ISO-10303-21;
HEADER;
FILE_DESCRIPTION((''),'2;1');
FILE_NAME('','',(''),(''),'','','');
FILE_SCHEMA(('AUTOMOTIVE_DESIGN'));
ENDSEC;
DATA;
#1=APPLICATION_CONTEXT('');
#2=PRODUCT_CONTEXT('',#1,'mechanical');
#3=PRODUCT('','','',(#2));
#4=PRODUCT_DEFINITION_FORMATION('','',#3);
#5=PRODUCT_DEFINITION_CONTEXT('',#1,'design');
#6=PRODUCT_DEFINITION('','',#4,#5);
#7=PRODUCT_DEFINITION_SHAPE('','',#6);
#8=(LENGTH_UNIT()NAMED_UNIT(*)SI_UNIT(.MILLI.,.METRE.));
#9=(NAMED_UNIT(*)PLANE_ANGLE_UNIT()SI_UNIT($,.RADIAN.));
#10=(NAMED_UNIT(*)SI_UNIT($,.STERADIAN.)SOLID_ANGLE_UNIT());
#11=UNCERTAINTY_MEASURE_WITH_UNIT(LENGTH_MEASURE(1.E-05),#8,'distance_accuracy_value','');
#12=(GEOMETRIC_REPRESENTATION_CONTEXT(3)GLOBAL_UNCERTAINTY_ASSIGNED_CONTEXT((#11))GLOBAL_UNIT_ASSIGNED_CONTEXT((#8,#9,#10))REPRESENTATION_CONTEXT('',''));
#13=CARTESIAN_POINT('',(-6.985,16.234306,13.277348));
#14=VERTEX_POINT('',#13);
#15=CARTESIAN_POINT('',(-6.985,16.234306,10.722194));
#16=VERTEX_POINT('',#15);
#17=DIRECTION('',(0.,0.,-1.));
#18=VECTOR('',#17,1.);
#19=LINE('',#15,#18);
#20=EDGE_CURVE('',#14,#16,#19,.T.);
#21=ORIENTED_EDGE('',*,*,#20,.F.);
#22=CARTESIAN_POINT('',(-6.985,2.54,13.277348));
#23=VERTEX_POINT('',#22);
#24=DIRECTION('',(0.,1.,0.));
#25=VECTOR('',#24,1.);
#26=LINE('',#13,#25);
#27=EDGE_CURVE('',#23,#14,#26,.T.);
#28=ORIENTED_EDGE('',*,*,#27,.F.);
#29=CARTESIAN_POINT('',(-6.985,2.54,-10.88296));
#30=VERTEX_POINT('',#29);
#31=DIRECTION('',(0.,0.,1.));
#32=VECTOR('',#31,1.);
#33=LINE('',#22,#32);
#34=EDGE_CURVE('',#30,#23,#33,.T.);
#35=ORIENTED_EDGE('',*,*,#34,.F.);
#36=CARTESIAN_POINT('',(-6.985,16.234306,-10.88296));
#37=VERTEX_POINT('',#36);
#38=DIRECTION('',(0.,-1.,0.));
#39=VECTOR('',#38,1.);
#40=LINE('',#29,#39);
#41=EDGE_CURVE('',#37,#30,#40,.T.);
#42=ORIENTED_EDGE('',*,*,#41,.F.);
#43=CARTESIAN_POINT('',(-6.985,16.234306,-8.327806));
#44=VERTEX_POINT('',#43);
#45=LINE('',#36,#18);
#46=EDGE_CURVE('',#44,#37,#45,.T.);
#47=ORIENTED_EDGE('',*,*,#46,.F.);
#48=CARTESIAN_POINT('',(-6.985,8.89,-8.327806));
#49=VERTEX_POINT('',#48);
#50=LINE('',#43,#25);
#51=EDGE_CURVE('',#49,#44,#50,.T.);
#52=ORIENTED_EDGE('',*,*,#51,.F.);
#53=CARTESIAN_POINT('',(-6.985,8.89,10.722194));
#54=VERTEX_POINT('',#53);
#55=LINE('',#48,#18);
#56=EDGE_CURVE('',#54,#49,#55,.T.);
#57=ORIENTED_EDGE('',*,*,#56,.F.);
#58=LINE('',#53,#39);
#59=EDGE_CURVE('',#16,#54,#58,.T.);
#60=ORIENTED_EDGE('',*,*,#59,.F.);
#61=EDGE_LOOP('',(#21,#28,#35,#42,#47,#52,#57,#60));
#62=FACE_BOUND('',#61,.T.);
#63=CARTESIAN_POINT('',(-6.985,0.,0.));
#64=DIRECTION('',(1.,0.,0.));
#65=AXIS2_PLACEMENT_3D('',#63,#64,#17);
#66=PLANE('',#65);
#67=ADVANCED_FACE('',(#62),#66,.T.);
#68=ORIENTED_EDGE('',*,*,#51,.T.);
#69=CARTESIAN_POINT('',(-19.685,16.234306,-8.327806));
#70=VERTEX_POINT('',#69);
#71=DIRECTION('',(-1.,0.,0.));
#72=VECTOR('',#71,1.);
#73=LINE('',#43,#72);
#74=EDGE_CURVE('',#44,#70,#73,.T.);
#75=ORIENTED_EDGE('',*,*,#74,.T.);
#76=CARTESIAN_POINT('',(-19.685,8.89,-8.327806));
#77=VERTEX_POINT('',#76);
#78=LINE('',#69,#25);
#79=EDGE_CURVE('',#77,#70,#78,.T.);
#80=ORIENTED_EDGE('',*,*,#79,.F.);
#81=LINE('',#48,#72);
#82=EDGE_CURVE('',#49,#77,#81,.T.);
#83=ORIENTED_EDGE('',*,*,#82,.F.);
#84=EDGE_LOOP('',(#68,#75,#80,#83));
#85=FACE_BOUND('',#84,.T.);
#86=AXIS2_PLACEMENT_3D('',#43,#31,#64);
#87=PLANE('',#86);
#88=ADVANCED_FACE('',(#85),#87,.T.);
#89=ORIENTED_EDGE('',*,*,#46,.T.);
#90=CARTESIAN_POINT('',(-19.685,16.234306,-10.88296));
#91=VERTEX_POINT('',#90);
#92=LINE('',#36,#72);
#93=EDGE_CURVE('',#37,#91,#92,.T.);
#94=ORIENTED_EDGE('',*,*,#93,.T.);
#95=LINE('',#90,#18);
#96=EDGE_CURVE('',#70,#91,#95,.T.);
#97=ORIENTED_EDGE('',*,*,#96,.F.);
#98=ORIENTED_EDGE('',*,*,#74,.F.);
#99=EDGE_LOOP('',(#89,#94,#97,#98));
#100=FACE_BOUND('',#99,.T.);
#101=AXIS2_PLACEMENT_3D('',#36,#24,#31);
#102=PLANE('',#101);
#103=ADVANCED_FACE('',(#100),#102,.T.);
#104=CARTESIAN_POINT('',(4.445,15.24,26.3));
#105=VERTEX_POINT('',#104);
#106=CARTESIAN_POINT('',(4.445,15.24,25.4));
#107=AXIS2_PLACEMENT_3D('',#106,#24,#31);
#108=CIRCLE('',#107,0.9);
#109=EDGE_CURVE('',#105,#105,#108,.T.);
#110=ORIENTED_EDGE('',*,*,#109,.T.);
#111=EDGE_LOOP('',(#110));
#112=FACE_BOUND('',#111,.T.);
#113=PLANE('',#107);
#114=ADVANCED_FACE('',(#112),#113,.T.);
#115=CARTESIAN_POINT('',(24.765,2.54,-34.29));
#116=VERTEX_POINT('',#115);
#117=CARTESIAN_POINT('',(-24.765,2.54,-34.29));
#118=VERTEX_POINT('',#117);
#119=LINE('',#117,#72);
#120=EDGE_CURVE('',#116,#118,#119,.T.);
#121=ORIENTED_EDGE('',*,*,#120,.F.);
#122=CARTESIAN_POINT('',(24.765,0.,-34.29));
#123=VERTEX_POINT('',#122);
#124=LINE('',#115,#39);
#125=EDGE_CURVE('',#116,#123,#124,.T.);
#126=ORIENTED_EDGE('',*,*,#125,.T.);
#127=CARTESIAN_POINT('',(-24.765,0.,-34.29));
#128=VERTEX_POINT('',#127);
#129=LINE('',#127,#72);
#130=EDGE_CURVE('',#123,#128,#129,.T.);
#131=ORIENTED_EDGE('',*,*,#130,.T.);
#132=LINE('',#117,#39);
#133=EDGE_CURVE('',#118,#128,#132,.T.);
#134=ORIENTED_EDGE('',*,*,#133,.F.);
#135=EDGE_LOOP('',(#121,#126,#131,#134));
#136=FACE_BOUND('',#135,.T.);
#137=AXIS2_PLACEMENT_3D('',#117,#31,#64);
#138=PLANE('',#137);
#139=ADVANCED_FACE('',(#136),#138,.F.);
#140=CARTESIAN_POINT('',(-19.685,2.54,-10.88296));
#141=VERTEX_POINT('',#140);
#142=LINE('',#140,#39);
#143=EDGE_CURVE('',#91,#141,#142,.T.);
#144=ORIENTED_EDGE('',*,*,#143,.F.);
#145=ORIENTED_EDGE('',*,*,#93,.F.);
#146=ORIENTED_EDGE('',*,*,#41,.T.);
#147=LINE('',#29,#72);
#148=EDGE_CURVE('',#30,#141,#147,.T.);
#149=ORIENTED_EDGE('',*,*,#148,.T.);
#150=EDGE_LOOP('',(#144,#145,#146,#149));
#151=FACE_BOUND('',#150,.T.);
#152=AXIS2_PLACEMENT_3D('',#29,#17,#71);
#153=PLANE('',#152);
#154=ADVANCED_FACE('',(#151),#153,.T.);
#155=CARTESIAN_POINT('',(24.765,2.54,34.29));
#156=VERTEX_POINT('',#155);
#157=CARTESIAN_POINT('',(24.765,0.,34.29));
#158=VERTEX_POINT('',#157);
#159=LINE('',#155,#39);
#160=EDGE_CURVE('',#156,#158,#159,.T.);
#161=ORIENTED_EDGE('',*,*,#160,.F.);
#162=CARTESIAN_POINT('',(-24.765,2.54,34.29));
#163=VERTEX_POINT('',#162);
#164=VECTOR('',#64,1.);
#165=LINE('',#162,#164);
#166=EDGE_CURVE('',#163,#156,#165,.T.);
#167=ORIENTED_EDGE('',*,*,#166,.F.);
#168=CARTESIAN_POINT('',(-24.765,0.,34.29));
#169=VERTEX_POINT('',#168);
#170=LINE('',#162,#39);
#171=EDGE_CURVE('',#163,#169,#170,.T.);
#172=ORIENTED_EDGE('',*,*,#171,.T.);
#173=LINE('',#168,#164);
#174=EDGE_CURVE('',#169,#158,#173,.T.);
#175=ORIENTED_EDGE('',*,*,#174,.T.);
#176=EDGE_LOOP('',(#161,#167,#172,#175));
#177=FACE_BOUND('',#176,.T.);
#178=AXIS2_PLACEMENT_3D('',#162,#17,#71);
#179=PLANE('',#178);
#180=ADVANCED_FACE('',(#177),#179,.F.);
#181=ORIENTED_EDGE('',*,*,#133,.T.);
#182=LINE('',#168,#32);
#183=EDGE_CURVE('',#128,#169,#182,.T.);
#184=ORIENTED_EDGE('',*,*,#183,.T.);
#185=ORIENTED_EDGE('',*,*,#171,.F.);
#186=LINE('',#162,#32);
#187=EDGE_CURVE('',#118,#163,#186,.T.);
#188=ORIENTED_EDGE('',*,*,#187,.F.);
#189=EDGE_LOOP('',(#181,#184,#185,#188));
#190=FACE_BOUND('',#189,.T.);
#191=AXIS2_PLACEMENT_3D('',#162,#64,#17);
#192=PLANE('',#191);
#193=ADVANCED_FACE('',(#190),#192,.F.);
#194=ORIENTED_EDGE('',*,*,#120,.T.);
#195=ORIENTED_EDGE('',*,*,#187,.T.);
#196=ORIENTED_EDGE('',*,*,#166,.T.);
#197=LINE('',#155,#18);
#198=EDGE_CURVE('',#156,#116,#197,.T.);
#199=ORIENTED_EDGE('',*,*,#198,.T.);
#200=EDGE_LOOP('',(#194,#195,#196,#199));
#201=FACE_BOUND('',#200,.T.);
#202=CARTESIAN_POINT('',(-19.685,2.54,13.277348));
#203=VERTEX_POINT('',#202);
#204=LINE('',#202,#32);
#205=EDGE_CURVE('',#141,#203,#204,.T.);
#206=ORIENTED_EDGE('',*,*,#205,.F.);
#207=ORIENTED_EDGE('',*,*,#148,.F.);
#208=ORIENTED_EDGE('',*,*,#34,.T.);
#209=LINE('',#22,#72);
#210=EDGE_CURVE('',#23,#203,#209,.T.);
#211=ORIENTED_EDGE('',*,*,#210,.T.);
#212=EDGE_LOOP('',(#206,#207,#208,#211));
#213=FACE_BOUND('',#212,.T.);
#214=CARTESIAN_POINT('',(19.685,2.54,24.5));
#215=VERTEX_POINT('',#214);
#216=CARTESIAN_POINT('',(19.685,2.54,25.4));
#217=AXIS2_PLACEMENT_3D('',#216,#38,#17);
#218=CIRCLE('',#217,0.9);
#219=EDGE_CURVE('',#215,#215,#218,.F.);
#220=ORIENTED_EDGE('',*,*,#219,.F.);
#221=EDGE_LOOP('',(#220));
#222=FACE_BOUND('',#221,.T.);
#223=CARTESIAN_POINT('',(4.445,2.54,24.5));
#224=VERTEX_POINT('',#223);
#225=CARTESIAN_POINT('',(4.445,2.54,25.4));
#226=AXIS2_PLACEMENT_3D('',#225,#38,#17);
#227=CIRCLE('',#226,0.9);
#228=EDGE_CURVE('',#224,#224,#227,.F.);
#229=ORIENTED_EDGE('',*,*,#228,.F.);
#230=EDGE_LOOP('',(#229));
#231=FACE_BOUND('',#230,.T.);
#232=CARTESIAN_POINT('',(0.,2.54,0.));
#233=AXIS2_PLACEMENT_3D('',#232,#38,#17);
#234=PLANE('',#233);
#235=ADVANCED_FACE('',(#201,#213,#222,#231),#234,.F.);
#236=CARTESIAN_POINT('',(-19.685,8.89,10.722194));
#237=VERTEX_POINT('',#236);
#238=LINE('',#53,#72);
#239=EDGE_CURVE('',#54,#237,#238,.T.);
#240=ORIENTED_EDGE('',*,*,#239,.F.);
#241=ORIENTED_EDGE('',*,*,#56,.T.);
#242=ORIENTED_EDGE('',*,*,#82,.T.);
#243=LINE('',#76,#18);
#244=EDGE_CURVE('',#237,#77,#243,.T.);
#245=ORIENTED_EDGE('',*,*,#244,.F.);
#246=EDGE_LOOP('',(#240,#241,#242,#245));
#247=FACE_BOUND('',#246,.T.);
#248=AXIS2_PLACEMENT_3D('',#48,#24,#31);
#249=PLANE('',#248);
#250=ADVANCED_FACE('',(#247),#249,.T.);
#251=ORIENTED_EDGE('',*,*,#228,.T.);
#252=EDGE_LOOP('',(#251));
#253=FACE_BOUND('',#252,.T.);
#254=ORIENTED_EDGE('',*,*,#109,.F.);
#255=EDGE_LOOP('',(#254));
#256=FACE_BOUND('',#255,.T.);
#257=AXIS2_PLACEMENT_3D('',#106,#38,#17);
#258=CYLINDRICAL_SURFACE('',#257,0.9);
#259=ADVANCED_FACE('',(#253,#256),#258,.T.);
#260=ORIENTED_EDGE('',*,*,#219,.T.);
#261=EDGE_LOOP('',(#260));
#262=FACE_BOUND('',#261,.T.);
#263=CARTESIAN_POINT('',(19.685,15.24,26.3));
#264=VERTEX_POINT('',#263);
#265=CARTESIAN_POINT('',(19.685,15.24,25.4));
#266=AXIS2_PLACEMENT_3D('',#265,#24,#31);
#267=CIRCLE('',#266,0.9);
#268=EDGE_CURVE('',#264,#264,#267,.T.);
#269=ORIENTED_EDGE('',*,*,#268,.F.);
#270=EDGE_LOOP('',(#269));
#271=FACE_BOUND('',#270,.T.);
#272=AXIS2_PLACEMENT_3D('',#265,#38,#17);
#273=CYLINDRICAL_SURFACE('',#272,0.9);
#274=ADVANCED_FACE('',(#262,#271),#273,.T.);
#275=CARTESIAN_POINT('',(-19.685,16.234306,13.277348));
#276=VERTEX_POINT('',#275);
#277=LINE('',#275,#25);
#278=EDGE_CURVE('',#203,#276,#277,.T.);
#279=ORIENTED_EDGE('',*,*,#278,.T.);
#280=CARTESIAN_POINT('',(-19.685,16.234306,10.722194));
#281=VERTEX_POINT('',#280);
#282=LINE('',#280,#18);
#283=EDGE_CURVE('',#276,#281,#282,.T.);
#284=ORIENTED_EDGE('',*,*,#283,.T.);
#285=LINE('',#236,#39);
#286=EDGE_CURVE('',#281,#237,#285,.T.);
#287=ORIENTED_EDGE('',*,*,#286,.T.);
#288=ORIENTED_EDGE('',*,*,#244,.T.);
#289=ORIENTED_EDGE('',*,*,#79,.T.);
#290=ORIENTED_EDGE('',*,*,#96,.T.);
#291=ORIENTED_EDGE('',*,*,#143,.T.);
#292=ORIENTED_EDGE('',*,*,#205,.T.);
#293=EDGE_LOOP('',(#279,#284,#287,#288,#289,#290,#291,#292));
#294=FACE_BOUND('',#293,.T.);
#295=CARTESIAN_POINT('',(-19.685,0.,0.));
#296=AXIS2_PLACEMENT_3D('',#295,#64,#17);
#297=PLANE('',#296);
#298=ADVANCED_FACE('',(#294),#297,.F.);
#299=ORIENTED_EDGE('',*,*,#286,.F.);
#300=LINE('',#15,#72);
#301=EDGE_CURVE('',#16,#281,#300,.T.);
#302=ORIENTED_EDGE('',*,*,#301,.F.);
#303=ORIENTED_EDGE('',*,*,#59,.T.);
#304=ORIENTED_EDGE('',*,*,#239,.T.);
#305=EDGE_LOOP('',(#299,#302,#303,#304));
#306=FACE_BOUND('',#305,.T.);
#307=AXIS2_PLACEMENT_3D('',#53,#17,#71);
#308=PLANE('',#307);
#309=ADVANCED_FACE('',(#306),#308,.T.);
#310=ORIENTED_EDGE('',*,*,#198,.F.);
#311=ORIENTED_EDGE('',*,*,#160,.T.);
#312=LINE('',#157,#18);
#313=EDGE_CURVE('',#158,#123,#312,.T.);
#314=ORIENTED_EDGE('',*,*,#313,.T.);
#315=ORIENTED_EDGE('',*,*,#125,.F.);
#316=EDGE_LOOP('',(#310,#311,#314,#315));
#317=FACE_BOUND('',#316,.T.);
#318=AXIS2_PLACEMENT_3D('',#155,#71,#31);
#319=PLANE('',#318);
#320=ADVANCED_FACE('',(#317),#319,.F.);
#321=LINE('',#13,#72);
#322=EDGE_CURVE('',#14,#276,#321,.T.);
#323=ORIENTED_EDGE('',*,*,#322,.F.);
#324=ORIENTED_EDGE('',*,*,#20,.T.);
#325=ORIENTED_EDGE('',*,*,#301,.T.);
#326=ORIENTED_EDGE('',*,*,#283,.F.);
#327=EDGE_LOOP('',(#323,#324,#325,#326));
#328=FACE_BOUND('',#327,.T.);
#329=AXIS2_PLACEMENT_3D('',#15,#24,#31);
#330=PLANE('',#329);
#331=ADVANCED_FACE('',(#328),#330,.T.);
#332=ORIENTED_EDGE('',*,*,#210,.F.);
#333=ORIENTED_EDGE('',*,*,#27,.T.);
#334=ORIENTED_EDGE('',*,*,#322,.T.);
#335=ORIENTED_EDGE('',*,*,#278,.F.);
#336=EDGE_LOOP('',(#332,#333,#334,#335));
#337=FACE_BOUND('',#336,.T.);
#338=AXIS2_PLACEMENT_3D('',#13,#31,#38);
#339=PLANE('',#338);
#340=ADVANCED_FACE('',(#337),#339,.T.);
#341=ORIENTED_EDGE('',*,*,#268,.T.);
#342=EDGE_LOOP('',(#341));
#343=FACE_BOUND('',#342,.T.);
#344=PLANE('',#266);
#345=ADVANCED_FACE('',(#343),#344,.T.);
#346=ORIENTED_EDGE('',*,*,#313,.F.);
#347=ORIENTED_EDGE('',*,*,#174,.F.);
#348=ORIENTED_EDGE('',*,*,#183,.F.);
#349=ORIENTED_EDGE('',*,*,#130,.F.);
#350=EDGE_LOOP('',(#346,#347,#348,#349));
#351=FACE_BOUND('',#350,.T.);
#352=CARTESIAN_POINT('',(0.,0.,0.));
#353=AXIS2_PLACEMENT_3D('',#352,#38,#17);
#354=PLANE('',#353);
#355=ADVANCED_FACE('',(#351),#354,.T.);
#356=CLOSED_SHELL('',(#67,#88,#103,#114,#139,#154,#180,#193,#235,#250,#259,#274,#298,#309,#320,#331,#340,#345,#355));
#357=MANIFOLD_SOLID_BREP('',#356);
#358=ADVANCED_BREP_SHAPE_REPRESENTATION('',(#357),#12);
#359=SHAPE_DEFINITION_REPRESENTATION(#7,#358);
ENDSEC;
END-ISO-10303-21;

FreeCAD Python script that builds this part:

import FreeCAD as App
import Part
import Sketcher
Q = App.Units.Quantity


def add_polygon(sketch, points):
    """Adds a closed chain of lines whose ends are joined by coincident constraints."""
    first, n = sketch.GeometryCount, len(points)
    for a, b in zip(points, points[1:] + points[:1]):
        sketch.addGeometry(Part.LineSegment(App.Vector(*a, 0), App.Vector(*b, 0)), False)
    for i in range(n):
        sketch.addConstraint(Sketcher.Constraint("Coincident", first + i, 2, first + (i + 1) % n, 1))

doc = App.newDocument("Part")
body = doc.addObject("PartDesign::Body", "Body")

# Sketch on XZ plane
sketch1 = body.newObject("Sketcher::SketchObject", "Sketch")
sketch1.AttachmentSupport = (doc.getObject("XZ_Plane"), [""])
sketch1.MapMode = "FlatFace"
add_polygon(sketch1, [(-24.765, -34.29), (-24.765, 34.29), (24.765, 34.29), (24.765, -34.29)])  # lines 0-3
sketch1.addConstraint(Sketcher.Constraint("Vertical", 0))
sketch1.addConstraint(Sketcher.Constraint("Horizontal", 1))
sketch1.addConstraint(Sketcher.Constraint("Vertical", 2))
sketch1.addConstraint(Sketcher.Constraint("Horizontal", 3))
sketch1.addConstraint(Sketcher.Constraint("Symmetric", 0, 2, 2, 2, -1, 1))
sketch1.addConstraint(Sketcher.Constraint("DistanceY", 0, 1, 0, 2, Q("2.7 in")))
sketch1.addConstraint(Sketcher.Constraint("DistanceX", 1, 1, 1, 2, Q("1.95 in")))
pad1 = body.newObject("PartDesign::Pad", "Pad")
pad1.Profile = sketch1
pad1.Length = Q("0.1 in")
pad1.Reversed = True

# Sketch on XZ plane
sketch2 = body.newObject("Sketcher::SketchObject", "Sketch001")
sketch2.AttachmentSupport = (doc.getObject("XZ_Plane"), [""])
sketch2.MapMode = "FlatFace"
sketch2.AttachmentOffset = App.Placement(App.Vector(0, 0, -0.1 * 25.4), App.Rotation())
sketch2.addGeometry(Part.Circle(App.Vector(4.445, 25.4, 0), App.Vector(0, 0, 1), 0.9), False)
sketch2.addGeometry(Part.Circle(App.Vector(19.685, 25.4, 0), App.Vector(0, 0, 1), 0.9), False)
sketch2.addConstraint(Sketcher.Constraint("Equal", 0, 1))
sketch2.addConstraint(Sketcher.Constraint("Horizontal", 0, 3, 1, 3))
sketch2.addConstraint(Sketcher.Constraint("DistanceY", -1, 1, 0, 3, Q("1 in")))
sketch2.addConstraint(Sketcher.Constraint("DistanceX", 0, 3, 1, 3, Q("0.6 in")))
sketch2.addConstraint(Sketcher.Constraint("Diameter", 0, Q("1.8 mm")))
sketch2.addConstraint(Sketcher.Constraint("DistanceX", -1, 1, 0, 3, Q("0.175 in")))
pad2 = body.newObject("PartDesign::Pad", "Pad001")
pad2.Profile = sketch2
pad2.Length = Q("0.5 in")
pad2.Reversed = True

# Sketch on YZ plane
sketch3 = body.newObject("Sketcher::SketchObject", "Sketch002")
sketch3.AttachmentSupport = (doc.getObject("YZ_Plane"), [""])
sketch3.MapMode = "FlatFace"
sketch3.AttachmentOffset = App.Placement(App.Vector(0, 0, -0.775 * 25.4), App.Rotation())
add_polygon(sketch3, [(16.234306, -10.88296), (2.54, -10.88296), (2.54, 13.277348), (16.234306, 13.277348), (16.234306, 10.722194), (8.89, 10.722194), (8.89, -8.327806), (16.234306, -8.327806)])  # lines 0-7
sketch3.addConstraint(Sketcher.Constraint("Horizontal", 0))
sketch3.addConstraint(Sketcher.Constraint("Vertical", 1))
sketch3.addConstraint(Sketcher.Constraint("Horizontal", 2))
sketch3.addConstraint(Sketcher.Constraint("Vertical", 3))
sketch3.addConstraint(Sketcher.Constraint("Horizontal", 4))
sketch3.addConstraint(Sketcher.Constraint("Vertical", 5))
sketch3.addConstraint(Sketcher.Constraint("Horizontal", 6))
sketch3.addConstraint(Sketcher.Constraint("Vertical", 7))
sketch3.addConstraint(Sketcher.Constraint("Vertical", 3, 2, 6, 2))
sketch3.addConstraint(Sketcher.Constraint("Equal", 3, 7))
sketch3.addConstraint(Sketcher.Constraint("DistanceY", 5, 2, 5, 1, Q("0.75 in")))
sketch3.addConstraint(Sketcher.Constraint("DistanceX", -1, 1, 0, 2, Q("0.1 in")))
sketch3.addConstraint(Sketcher.Constraint("DistanceX", -1, 1, 4, 2, Q("0.35 in")))
sketch3.addConstraint(Sketcher.Constraint("DistanceY", 1, 1, 1, 2, Q("24.160308 mm")))
sketch3.addConstraint(Sketcher.Constraint("DistanceX", 0, 2, 0, 1, Q("13.694306 mm")))
sketch3.addConstraint(Sketcher.Constraint("DistanceY", 0, 2, -1, 1, Q("10.88296 mm")))
pad3 = body.newObject("PartDesign::Pad", "Pad002")
pad3.Profile = sketch3
pad3.Length = Q("0.5 in")

doc.recompute()
